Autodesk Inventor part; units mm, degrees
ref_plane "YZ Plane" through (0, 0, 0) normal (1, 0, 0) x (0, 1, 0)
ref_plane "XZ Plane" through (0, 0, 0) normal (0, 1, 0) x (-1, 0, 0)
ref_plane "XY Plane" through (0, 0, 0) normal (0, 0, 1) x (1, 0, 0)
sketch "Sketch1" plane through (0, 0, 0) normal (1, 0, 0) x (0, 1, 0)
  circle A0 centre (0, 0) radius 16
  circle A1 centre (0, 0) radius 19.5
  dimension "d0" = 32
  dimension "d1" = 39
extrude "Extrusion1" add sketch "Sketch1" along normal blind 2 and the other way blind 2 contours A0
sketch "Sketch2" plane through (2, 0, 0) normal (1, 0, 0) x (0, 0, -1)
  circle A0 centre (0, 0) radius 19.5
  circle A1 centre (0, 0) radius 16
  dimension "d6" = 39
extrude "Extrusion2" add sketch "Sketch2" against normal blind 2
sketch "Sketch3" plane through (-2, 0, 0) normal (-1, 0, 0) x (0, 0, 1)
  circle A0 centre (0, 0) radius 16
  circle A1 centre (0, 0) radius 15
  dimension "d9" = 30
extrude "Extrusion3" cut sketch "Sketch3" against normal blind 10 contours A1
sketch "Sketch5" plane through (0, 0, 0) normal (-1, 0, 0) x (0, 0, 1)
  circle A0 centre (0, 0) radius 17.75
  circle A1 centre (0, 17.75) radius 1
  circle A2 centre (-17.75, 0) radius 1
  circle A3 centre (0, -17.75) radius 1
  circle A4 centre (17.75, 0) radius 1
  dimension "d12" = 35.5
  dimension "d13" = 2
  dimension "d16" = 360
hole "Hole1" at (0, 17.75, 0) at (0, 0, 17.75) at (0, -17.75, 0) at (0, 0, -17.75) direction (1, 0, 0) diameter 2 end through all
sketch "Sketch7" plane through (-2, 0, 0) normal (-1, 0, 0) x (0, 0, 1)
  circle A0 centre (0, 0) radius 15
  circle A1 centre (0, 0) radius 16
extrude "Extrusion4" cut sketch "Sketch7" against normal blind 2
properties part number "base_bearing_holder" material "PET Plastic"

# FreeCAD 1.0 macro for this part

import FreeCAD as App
import Part
import Sketcher
from FreeCAD import Vector
Q = App.Units.Quantity

doc = App.newDocument("Part")
params = doc.addObject("Spreadsheet::Sheet", "Params")
for row, (alias, value) in enumerate([
    ("sketch1_diameter", "32 mm"),
    ("pad1_length", "2 mm"),
    ("pad1_length2", "2 mm"),
    ("sketch2_diameter", "39 mm"),
    ("sketch2_diameter2", "32 mm"),
    ("pad2_length", "2 mm"),
    ("sketch3_diameter", "30 mm"),
    ("pocket1_length", "10 mm"),
    ("sketch4_diameter", "2 mm"),
    ("hole_diameter", "2 mm"),
    ("sketch5_diameter", "32 mm"),
    ("sketch5_diameter2", "30 mm"),
    ("pocket2_length", "2 mm"),
], start=1):
    params.set(f"A{row}", alias)
    params.set(f"B{row}", "=" + value)
    params.setAlias(f"B{row}", alias)

body = doc.addObject("PartDesign::Body", "Body")

# Sketch on YZ plane
sketch1 = body.newObject("Sketcher::SketchObject", "Sketch")
sketch1.AttachmentSupport = (doc.getObject("YZ_Plane"), [""])
sketch1.MapMode = "FlatFace"
sketch1.addGeometry(Part.Circle(Vector(0, 0, 0), Vector(0, 0, 1), 16), False)
sketch1.addConstraint(Sketcher.Constraint("Coincident", 0, 3, -1, 1))
sketch1.addConstraint(Sketcher.Constraint("Diameter", 0, Q("32 mm")))
sketch1.setExpression("Constraints[1]", "Params.sketch1_diameter")
pad1 = body.newObject("PartDesign::Pad", "Pad")
pad1.Profile = sketch1
pad1.Type = "TwoLengths"
pad1.setExpression("Length", "Params.pad1_length")
pad1.setExpression("Length2", "Params.pad1_length2")

# Sketch on YZ plane
sketch2 = body.newObject("Sketcher::SketchObject", "Sketch001")
sketch2.AttachmentSupport = (doc.getObject("YZ_Plane"), [""])
sketch2.MapMode = "FlatFace"
sketch2.AttachmentOffset = App.Placement(Vector(0, 0, 2), App.Rotation())
sketch2.addGeometry(Part.Circle(Vector(0, 0, 0), Vector(0, 0, 1), 20), False)
sketch2.addGeometry(Part.Circle(Vector(0, 0, 0), Vector(0, 0, 1), 16), False)
sketch2.addConstraint(Sketcher.Constraint("Coincident", 0, 3, -1, 1))
sketch2.addConstraint(Sketcher.Constraint("Coincident", 1, 3, -1, 1))
sketch2.addConstraint(Sketcher.Constraint("Diameter", 0, Q("39 mm")))
sketch2.addConstraint(Sketcher.Constraint("Diameter", 1, Q("32 mm")))
sketch2.setExpression("Constraints[2]", "Params.sketch2_diameter")
sketch2.setExpression("Constraints[3]", "Params.sketch2_diameter2")
pad2 = body.newObject("PartDesign::Pad", "Pad001")
pad2.Profile = sketch2
pad2.setExpression("Length", "Params.pad2_length")
pad2.Reversed = True

# Sketch on YZ plane
sketch3 = body.newObject("Sketcher::SketchObject", "Sketch002")
sketch3.AttachmentSupport = (doc.getObject("YZ_Plane"), [""])
sketch3.MapMode = "FlatFace"
sketch3.AttachmentOffset = App.Placement(Vector(0, 0, -2), App.Rotation())
sketch3.addGeometry(Part.Circle(Vector(0, 0, 0), Vector(0, 0, 1), 15), False)
sketch3.addConstraint(Sketcher.Constraint("Coincident", 0, 3, -1, 1))
sketch3.addConstraint(Sketcher.Constraint("Diameter", 0, Q("30 mm")))
sketch3.setExpression("Constraints[1]", "Params.sketch3_diameter")
pocket1 = body.newObject("PartDesign::Pocket", "Pocket")
pocket1.Profile = sketch3
pocket1.setExpression("Length", "Params.pocket1_length")
pocket1.Reversed = True

# Sketch on YZ plane
sketch4 = body.newObject("Sketcher::SketchObject", "Sketch003")
sketch4.AttachmentSupport = (doc.getObject("YZ_Plane"), [""])
sketch4.MapMode = "FlatFace"
sketch4.addGeometry(Part.Circle(Vector(17.8, 0, 0), Vector(0, 0, 1), 1), False)
sketch4.addGeometry(Part.Circle(Vector(0, 17.8, 0), Vector(0, 0, 1), 1), False)
sketch4.addGeometry(Part.Circle(Vector(-17.8, 0, 0), Vector(0, 0, 1), 1), False)
sketch4.addGeometry(Part.Circle(Vector(0, -17.8, 0), Vector(0, 0, 1), 1), False)
sketch4.addConstraint(Sketcher.Constraint("Equal", 0, 1))
sketch4.addConstraint(Sketcher.Constraint("Equal", 1, 2))
sketch4.addConstraint(Sketcher.Constraint("Equal", 2, 3))
sketch4.addConstraint(Sketcher.Constraint("Symmetric", 0, 3, 2, 3, -1, 1))
sketch4.addConstraint(Sketcher.Constraint("Symmetric", 1, 3, 3, 3, -1, 1))
sketch4.addConstraint(Sketcher.Constraint("PointOnObject", 0, 3, -1))
sketch4.addConstraint(Sketcher.Constraint("PointOnObject", 1, 3, -2))
sketch4.addConstraint(Sketcher.Constraint("Diameter", 0, Q("2 mm")))
sketch4.addConstraint(Sketcher.Constraint("DistanceX", 2, 3, 0, 3, Q("35.5 mm")))
sketch4.addConstraint(Sketcher.Constraint("DistanceY", 3, 3, 1, 3, Q("35.5 mm")))
sketch4.setExpression("Constraints[7]", "Params.sketch4_diameter")
doc.recompute()
hole = body.newObject("PartDesign::Hole", "Hole")
hole.Profile = sketch4
hole.ThreadType = "None"
hole.setExpression("Diameter", "Params.hole_diameter")
hole.DepthType = "ThroughAll"
hole.Reversed = True

# Sketch on YZ plane
sketch5 = body.newObject("Sketcher::SketchObject", "Sketch004")
sketch5.AttachmentSupport = (doc.getObject("YZ_Plane"), [""])
sketch5.MapMode = "FlatFace"
sketch5.AttachmentOffset = App.Placement(Vector(0, 0, -2), App.Rotation())
sketch5.addGeometry(Part.Circle(Vector(0, 0, 0), Vector(0, 0, 1), 16), False)
sketch5.addGeometry(Part.Circle(Vector(0, 0, 0), Vector(0, 0, 1), 15), False)
sketch5.addConstraint(Sketcher.Constraint("Coincident", 0, 3, -1, 1))
sketch5.addConstraint(Sketcher.Constraint("Coincident", 1, 3, -1, 1))
sketch5.addConstraint(Sketcher.Constraint("Diameter", 0, Q("32 mm")))
sketch5.addConstraint(Sketcher.Constraint("Diameter", 1, Q("30 mm")))
sketch5.setExpression("Constraints[2]", "Params.sketch5_diameter")
sketch5.setExpression("Constraints[3]", "Params.sketch5_diameter2")
pocket2 = body.newObject("PartDesign::Pocket", "Pocket001")
pocket2.Profile = sketch5
pocket2.setExpression("Length", "Params.pocket2_length")
pocket2.Reversed = True

doc.recompute()
